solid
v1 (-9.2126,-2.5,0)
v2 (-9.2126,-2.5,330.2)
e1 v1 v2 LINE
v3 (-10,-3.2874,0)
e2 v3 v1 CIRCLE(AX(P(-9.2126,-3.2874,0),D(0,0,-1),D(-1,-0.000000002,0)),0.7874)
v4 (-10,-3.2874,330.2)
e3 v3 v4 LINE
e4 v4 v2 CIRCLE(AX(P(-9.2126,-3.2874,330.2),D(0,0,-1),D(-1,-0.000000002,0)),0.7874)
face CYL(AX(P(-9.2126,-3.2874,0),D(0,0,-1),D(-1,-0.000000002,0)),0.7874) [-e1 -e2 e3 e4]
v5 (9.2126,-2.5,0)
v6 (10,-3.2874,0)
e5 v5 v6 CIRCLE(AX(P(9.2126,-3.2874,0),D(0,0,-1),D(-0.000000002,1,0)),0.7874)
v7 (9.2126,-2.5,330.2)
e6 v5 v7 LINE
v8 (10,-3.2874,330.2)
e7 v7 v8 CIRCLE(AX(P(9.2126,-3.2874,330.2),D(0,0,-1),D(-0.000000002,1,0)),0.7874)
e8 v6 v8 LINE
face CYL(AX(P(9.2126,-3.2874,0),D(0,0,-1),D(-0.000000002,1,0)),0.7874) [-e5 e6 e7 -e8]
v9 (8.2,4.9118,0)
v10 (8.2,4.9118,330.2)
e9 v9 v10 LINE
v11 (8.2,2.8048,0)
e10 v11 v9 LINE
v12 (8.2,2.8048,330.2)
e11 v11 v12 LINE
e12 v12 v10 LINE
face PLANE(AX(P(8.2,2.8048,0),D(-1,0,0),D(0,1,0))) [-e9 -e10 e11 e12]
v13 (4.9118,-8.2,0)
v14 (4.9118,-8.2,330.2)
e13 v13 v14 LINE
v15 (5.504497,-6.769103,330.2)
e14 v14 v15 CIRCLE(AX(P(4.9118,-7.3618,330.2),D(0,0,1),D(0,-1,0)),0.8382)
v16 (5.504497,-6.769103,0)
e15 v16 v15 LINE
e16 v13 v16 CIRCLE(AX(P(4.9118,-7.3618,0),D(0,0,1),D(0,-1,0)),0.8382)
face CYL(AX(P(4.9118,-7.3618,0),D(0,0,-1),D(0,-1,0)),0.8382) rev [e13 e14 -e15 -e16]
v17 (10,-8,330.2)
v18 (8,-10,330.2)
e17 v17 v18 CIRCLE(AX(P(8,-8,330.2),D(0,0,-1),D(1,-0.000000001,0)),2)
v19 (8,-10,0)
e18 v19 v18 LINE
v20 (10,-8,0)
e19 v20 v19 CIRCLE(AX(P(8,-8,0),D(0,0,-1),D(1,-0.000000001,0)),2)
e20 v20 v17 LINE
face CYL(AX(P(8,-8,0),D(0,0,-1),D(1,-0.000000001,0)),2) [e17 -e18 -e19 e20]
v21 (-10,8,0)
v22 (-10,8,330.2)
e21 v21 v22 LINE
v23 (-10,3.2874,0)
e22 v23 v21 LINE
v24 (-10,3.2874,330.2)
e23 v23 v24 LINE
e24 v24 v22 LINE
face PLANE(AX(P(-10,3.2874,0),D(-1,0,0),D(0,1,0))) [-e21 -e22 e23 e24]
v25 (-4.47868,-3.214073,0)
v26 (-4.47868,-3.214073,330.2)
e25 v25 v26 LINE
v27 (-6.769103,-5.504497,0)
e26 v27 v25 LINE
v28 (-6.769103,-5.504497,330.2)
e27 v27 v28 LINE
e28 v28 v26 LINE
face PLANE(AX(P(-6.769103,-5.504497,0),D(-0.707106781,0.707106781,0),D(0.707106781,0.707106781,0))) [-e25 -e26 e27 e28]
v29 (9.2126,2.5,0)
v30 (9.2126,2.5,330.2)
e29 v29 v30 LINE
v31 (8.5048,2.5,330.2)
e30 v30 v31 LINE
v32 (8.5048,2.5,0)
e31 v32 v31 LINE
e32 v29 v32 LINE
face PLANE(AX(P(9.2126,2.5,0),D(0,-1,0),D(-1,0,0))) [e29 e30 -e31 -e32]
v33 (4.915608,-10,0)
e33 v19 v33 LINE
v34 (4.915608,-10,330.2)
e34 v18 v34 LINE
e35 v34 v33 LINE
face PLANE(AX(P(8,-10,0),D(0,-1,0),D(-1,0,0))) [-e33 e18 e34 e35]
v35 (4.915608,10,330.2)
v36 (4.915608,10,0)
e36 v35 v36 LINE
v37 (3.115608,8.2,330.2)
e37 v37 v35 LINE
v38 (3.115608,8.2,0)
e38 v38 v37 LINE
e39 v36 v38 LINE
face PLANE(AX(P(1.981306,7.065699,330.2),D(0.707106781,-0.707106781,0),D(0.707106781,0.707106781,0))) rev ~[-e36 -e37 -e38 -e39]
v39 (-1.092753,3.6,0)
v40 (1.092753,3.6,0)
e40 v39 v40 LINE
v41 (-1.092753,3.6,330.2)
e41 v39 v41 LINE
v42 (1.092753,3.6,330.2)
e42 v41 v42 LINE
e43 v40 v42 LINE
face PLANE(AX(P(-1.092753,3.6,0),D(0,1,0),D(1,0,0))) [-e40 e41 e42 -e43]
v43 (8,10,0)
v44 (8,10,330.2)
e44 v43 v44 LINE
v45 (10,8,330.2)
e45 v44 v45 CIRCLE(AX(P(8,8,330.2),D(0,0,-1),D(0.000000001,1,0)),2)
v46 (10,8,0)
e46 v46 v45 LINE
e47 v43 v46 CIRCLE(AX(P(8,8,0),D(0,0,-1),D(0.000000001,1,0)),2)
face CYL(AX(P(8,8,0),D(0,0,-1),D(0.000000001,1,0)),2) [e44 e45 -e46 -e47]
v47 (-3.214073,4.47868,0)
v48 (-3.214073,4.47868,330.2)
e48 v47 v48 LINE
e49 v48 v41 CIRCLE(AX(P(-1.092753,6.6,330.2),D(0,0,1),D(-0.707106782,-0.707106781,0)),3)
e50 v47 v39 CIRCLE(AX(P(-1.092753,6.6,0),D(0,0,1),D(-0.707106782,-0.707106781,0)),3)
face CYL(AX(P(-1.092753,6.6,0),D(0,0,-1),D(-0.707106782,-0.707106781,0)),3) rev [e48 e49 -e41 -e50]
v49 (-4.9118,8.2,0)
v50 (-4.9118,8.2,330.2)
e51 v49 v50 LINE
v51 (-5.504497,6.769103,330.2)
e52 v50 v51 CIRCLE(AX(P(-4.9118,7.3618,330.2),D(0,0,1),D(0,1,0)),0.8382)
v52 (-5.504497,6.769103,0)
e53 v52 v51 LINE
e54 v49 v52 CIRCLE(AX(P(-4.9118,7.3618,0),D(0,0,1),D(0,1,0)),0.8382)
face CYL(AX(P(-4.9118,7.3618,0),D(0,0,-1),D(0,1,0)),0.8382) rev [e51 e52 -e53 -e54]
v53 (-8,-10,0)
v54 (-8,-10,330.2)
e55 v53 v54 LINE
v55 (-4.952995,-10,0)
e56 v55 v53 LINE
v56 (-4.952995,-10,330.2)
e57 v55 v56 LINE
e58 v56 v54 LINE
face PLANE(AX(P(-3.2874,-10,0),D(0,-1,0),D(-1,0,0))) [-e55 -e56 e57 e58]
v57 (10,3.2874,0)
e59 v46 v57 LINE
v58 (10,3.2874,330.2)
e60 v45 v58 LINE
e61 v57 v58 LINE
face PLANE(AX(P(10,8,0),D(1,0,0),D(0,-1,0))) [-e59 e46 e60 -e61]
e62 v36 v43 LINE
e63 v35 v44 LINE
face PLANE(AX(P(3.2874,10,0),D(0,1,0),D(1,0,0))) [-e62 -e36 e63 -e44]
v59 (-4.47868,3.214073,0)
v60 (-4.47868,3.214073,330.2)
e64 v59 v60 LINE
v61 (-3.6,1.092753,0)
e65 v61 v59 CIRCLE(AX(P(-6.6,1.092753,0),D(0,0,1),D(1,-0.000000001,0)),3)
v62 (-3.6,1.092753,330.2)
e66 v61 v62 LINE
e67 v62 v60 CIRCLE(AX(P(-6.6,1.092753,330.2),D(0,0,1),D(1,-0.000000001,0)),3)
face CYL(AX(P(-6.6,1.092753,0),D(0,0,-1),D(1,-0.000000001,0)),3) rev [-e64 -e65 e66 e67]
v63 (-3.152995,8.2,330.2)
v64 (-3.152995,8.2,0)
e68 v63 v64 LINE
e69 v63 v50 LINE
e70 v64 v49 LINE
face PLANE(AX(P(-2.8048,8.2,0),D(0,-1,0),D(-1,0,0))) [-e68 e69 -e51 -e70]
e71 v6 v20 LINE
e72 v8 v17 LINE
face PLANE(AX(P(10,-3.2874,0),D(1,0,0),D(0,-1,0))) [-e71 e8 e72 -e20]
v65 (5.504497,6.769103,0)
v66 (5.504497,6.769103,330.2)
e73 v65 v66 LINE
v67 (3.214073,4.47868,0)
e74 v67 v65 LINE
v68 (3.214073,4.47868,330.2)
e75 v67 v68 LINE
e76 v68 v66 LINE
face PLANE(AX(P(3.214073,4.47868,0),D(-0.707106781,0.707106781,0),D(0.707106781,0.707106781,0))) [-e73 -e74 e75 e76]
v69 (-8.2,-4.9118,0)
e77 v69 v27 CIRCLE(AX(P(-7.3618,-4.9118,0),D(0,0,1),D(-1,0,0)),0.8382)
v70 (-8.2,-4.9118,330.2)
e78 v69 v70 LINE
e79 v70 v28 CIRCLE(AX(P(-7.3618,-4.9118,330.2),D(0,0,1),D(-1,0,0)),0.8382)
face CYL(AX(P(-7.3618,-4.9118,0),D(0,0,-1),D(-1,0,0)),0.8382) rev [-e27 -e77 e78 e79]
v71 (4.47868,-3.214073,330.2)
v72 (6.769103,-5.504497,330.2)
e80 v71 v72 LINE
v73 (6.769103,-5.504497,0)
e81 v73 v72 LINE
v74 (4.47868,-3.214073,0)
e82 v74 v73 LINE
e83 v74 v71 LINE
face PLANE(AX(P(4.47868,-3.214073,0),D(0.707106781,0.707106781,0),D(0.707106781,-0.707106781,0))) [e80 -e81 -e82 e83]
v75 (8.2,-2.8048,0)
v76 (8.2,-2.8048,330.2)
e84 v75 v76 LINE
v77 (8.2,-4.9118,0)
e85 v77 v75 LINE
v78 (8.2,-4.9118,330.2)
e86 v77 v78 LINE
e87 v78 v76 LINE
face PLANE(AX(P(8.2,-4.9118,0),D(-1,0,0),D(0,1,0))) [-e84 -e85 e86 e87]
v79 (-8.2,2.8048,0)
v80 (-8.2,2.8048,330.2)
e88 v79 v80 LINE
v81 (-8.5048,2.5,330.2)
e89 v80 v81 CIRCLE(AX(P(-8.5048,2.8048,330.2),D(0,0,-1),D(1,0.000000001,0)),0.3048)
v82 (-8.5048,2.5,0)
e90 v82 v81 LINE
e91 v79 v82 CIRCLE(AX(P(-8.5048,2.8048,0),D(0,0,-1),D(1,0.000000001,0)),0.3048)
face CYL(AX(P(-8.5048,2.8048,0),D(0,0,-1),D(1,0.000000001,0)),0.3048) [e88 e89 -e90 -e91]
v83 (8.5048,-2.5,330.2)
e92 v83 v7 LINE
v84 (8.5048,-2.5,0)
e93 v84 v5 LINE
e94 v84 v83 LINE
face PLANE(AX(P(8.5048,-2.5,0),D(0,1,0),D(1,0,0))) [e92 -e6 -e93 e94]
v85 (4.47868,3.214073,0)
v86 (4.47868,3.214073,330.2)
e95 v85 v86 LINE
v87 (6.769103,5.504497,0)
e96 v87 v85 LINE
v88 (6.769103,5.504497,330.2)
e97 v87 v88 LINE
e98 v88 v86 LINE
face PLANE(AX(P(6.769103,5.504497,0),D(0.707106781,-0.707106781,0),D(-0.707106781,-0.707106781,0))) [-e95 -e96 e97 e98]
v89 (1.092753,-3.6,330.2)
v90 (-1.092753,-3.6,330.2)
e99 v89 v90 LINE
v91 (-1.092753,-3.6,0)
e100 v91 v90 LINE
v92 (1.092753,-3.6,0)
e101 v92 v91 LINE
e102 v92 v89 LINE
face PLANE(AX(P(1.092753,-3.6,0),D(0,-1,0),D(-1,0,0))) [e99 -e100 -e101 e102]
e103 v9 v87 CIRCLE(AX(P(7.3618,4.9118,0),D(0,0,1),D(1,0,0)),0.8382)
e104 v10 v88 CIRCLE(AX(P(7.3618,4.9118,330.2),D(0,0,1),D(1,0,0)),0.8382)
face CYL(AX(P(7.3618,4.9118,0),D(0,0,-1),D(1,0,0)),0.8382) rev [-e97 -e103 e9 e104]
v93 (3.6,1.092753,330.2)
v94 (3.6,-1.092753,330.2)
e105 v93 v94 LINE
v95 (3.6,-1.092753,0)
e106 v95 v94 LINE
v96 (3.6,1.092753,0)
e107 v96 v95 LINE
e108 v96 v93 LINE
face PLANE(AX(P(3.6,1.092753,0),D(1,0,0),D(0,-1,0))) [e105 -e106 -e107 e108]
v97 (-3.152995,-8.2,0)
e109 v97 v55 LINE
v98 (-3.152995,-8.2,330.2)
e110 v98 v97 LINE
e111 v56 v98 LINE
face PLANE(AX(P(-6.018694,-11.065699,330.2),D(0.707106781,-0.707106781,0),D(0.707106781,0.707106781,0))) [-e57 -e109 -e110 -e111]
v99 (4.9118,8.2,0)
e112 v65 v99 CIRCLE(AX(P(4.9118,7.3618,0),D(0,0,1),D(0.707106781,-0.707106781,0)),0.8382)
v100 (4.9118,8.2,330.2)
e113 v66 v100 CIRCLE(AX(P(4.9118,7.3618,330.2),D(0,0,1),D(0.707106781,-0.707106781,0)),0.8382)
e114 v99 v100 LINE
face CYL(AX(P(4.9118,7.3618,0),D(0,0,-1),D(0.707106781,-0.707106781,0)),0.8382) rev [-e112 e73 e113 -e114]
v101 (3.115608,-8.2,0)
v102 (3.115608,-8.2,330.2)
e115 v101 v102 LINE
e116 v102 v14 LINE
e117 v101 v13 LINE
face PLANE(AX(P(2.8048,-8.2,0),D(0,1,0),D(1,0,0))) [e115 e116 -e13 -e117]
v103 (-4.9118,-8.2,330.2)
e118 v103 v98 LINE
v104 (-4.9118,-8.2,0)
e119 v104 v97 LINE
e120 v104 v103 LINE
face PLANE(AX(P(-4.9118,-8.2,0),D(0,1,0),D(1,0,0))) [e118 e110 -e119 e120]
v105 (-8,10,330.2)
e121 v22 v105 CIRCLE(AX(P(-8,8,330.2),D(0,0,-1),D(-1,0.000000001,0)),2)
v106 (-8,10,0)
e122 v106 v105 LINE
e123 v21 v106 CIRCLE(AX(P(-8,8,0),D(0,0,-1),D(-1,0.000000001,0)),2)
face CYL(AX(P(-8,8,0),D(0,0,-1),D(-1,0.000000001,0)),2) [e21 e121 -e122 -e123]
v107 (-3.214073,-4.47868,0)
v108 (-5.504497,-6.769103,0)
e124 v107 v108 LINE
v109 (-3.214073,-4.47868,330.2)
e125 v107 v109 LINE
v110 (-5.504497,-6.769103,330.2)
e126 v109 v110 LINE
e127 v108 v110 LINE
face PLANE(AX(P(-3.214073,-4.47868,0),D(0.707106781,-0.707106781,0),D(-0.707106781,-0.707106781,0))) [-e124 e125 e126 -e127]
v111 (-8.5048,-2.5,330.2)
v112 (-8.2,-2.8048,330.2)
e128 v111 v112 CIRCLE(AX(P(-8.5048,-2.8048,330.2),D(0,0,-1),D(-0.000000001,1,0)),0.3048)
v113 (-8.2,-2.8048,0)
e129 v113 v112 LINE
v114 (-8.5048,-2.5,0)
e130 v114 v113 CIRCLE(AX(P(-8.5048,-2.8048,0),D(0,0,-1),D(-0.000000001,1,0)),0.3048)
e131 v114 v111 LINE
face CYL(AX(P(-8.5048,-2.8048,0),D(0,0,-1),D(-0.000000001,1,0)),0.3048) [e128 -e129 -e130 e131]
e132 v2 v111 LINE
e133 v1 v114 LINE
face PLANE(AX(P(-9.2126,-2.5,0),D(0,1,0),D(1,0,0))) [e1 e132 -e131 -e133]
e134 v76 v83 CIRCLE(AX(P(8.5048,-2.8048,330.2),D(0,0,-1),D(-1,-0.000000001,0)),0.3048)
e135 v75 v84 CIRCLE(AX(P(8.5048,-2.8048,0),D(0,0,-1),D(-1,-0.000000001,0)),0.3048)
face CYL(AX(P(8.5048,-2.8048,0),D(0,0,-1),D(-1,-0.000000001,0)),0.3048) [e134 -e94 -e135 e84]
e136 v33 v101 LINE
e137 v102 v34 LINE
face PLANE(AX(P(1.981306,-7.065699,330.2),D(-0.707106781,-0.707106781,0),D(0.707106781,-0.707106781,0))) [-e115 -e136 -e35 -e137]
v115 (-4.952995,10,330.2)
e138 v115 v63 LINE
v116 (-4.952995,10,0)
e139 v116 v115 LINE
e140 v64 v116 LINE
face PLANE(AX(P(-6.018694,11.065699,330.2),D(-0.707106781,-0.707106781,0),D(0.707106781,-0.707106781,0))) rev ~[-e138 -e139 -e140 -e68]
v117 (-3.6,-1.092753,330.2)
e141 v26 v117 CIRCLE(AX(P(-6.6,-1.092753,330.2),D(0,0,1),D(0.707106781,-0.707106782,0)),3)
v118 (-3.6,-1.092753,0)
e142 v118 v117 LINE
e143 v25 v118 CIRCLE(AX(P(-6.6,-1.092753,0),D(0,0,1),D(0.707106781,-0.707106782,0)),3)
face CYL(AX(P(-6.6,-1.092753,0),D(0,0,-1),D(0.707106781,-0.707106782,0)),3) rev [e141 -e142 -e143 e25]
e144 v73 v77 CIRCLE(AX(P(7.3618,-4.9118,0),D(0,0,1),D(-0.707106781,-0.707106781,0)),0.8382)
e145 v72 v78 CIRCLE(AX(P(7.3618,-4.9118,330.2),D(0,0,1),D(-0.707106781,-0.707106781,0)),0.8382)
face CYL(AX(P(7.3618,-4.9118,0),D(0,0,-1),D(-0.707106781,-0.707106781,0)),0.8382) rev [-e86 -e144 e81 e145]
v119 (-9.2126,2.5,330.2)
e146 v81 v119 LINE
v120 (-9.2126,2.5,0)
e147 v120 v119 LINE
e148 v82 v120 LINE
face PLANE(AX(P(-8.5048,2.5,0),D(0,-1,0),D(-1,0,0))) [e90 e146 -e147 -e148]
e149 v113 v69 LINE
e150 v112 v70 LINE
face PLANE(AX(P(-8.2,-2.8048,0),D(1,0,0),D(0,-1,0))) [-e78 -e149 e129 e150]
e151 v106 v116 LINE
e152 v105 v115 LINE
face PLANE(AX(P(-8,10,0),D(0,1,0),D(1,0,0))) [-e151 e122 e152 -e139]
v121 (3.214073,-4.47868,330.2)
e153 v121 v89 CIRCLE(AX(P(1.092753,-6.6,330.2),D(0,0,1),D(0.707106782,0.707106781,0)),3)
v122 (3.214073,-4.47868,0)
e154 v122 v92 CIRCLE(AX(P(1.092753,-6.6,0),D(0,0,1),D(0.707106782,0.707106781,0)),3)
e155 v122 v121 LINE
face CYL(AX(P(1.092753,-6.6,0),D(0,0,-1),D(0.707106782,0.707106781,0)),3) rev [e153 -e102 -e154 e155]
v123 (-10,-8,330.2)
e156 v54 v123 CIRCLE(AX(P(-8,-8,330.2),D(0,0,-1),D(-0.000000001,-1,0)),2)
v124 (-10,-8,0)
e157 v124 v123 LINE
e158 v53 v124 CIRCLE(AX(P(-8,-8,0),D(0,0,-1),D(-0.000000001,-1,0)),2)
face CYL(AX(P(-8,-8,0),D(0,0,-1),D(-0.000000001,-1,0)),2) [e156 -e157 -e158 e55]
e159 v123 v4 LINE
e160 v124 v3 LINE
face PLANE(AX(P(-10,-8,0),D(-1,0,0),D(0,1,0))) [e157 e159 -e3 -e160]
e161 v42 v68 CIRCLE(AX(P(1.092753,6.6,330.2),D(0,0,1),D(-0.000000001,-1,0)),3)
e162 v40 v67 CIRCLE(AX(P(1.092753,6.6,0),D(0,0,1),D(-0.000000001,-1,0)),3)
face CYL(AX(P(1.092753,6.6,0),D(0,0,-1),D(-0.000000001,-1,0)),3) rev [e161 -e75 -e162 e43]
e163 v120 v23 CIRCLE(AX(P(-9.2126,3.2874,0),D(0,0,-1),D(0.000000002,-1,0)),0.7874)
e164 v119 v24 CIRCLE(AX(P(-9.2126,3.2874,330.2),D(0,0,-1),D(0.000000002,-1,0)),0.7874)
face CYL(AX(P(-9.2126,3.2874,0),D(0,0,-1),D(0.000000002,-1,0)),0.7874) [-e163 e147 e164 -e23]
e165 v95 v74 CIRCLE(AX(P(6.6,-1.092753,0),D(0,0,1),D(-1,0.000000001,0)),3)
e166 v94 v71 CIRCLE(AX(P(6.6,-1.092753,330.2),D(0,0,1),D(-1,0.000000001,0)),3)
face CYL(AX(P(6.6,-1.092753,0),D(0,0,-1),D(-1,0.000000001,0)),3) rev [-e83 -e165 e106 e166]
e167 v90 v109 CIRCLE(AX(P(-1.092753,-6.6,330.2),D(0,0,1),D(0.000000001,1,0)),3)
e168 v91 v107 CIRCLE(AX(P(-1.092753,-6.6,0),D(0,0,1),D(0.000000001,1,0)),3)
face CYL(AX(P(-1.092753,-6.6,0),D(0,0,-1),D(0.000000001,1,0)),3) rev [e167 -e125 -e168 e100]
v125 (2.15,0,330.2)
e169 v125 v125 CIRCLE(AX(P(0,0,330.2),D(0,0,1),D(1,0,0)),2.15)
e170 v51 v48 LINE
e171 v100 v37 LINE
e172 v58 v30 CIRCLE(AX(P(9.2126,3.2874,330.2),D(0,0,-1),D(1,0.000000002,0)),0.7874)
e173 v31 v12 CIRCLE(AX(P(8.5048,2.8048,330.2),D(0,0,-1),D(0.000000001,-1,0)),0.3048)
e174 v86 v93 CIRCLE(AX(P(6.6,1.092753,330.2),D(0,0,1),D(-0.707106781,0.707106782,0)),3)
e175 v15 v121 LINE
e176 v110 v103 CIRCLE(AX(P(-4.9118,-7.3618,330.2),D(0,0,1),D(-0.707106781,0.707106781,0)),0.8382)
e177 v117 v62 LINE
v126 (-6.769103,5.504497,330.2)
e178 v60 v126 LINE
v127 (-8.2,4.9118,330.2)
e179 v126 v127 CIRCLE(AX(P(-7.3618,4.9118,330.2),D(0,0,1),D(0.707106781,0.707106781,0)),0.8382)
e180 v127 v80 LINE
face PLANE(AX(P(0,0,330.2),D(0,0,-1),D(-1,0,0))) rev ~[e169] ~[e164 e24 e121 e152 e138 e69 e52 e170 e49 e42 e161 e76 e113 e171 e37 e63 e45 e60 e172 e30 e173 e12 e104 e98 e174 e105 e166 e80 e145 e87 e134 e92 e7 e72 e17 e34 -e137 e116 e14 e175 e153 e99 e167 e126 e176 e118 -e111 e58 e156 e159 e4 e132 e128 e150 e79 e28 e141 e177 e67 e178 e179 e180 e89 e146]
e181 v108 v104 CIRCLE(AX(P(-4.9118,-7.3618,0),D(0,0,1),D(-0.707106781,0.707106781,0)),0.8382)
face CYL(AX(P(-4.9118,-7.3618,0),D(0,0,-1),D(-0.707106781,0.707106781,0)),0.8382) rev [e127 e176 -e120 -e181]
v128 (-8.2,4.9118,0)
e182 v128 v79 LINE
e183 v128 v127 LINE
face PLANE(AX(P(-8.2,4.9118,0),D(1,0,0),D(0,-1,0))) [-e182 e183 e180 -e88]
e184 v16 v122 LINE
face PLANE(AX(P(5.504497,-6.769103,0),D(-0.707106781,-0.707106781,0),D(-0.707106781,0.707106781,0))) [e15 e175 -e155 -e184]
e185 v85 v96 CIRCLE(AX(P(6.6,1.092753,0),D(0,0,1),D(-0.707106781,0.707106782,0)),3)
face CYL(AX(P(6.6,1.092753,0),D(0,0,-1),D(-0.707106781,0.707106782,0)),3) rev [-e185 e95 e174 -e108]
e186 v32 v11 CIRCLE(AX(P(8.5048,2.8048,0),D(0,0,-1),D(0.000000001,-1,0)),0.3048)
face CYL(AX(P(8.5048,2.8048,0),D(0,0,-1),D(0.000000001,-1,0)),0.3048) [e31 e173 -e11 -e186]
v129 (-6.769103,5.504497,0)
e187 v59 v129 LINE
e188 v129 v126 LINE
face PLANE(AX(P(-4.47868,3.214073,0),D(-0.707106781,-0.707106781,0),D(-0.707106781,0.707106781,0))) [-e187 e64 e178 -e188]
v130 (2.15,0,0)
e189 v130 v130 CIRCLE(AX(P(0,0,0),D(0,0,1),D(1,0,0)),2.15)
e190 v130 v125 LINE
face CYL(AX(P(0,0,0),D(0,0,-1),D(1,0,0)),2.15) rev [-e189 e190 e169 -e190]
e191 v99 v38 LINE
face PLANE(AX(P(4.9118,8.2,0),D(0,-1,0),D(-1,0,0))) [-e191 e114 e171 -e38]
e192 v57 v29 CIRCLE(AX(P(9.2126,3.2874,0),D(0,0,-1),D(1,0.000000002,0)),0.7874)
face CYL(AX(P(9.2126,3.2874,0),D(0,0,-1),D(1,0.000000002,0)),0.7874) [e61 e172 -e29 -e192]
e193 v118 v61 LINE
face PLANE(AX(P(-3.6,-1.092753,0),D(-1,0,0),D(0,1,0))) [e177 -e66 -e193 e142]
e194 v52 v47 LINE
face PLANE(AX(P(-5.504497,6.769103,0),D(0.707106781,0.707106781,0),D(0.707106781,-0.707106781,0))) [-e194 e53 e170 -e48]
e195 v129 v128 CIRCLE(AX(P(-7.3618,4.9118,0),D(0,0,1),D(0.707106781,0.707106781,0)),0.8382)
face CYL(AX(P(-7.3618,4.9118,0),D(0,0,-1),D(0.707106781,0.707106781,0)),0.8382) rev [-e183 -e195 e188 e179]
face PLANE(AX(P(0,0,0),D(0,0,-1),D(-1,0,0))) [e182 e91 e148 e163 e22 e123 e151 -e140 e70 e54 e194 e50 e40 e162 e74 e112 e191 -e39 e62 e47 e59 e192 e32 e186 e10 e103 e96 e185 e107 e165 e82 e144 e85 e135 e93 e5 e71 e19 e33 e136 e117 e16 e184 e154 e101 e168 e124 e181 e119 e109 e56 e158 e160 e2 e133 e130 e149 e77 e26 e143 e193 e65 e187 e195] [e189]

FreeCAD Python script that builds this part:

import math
import FreeCAD as App
import Part
import Sketcher

V = App.Vector


def add_polygon(sketch, points):
    """Adds a closed chain of lines whose ends are joined by coincident constraints."""
    first, n = sketch.GeometryCount, len(points)
    for a, b in zip(points, points[1:] + points[:1]):
        sketch.addGeometry(Part.LineSegment(App.Vector(*a, 0), App.Vector(*b, 0)), False)
    for i in range(n):
        sketch.addConstraint(Sketcher.Constraint("Coincident", first + i, 2, first + (i + 1) % n, 1))

doc = App.newDocument("Part")
body = doc.addObject("PartDesign::Body", "Body")

# Sketch on XY plane
sketch1 = doc.addObject("Sketcher::SketchObject", "Sketch")
body.addObject(sketch1)
sketch1.AttachmentSupport = (doc.XY_Plane, [""])
sketch1.MapMode = "FlatFace"
sketch1.addGeometry(Part.LineSegment(V(8, 10, 0), V(3.29, 10, 0)), False)
sketch1.addGeometry(Part.ArcOfCircle(Part.Circle(V(3.29, 9.21, 0), V(0, 0, 1), 0.79), math.radians(90), math.radians(180)), False)
sketch1.addGeometry(Part.LineSegment(V(2.5, 9.21, 0), V(2.5, 8.5, 0)), False)
sketch1.addGeometry(Part.ArcOfCircle(Part.Circle(V(2.8, 8.5, 0), V(0, 0, 1), 0.3), math.radians(180), math.radians(270)), False)
sketch1.addGeometry(Part.LineSegment(V(2.8, 8.2, 0), V(4.91, 8.2, 0)), False)
sketch1.addGeometry(Part.ArcOfCircle(Part.Circle(V(4.91, 7.36, 0), V(0, 0, 1), 0.84), math.radians(-45), math.radians(90)), False)
sketch1.addGeometry(Part.LineSegment(V(5.5, 6.77, 0), V(3.21, 4.48, 0)), False)
sketch1.addGeometry(Part.ArcOfCircle(Part.Circle(V(1.09, 6.6, 0), V(0, 0, 1), 3), math.radians(-90), math.radians(-45)), False)
sketch1.addGeometry(Part.LineSegment(V(1.09, 3.6, 0), V(-1.09, 3.6, 0)), False)
sketch1.addGeometry(Part.ArcOfCircle(Part.Circle(V(-1.09, 6.6, 0), V(0, 0, 1), 3), math.radians(-135), math.radians(-90)), False)
sketch1.addGeometry(Part.LineSegment(V(-3.21, 4.48, 0), V(-5.5, 6.77, 0)), False)
sketch1.addGeometry(Part.ArcOfCircle(Part.Circle(V(-4.91, 7.36, 0), V(0, 0, 1), 0.84), math.radians(90), math.radians(225)), False)
sketch1.addGeometry(Part.LineSegment(V(-4.91, 8.2, 0), V(-2.8, 8.2, 0)), False)
sketch1.addGeometry(Part.ArcOfCircle(Part.Circle(V(-2.8, 8.5, 0), V(0, 0, 1), 0.3), math.radians(-90), math.radians(0)), False)
sketch1.addGeometry(Part.LineSegment(V(-2.5, 8.5, 0), V(-2.5, 9.21, 0)), False)
sketch1.addGeometry(Part.ArcOfCircle(Part.Circle(V(-3.29, 9.21, 0), V(0, 0, 1), 0.79), math.radians(0), math.radians(90)), False)
sketch1.addGeometry(Part.LineSegment(V(-3.29, 10, 0), V(-8, 10, 0)), False)
sketch1.addGeometry(Part.ArcOfCircle(Part.Circle(V(-8, 8, 0), V(0, 0, 1), 2), math.radians(90), math.radians(180)), False)
sketch1.addGeometry(Part.LineSegment(V(-10, 8, 0), V(-10, 3.29, 0)), False)
sketch1.addGeometry(Part.ArcOfCircle(Part.Circle(V(-9.21, 3.29, 0), V(0, 0, 1), 0.79), math.radians(180), math.radians(270)), False)
sketch1.addGeometry(Part.LineSegment(V(-9.21, 2.5, 0), V(-8.5, 2.5, 0)), False)
sketch1.addGeometry(Part.ArcOfCircle(Part.Circle(V(-8.5, 2.8, 0), V(0, 0, 1), 0.3), math.radians(-90), math.radians(0)), False)
sketch1.addGeometry(Part.LineSegment(V(-8.2, 2.8, 0), V(-8.2, 4.91, 0)), False)
sketch1.addGeometry(Part.ArcOfCircle(Part.Circle(V(-7.36, 4.91, 0), V(0, 0, 1), 0.84), math.radians(45), math.radians(180)), False)
sketch1.addGeometry(Part.LineSegment(V(-6.77, 5.5, 0), V(-4.48, 3.21, 0)), False)
sketch1.addGeometry(Part.ArcOfCircle(Part.Circle(V(-6.6, 1.09, 0), V(0, 0, 1), 3), math.radians(0), math.radians(45)), False)
sketch1.addGeometry(Part.LineSegment(V(-3.6, 1.09, 0), V(-3.6, -1.09, 0)), False)
sketch1.addGeometry(Part.ArcOfCircle(Part.Circle(V(-6.6, -1.09, 0), V(0, 0, 1), 3), math.radians(-45), math.radians(0)), False)
sketch1.addGeometry(Part.LineSegment(V(-4.48, -3.21, 0), V(-6.77, -5.5, 0)), False)
sketch1.addGeometry(Part.ArcOfCircle(Part.Circle(V(-7.36, -4.91, 0), V(0, 0, 1), 0.84), math.radians(180), math.radians(315)), False)
sketch1.addGeometry(Part.LineSegment(V(-8.2, -4.91, 0), V(-8.2, -2.8, 0)), False)
sketch1.addGeometry(Part.ArcOfCircle(Part.Circle(V(-8.5, -2.8, 0), V(0, 0, 1), 0.3), math.radians(0), math.radians(90)), False)
sketch1.addGeometry(Part.LineSegment(V(-8.5, -2.5, 0), V(-9.21, -2.5, 0)), False)
sketch1.addGeometry(Part.ArcOfCircle(Part.Circle(V(-9.21, -3.29, 0), V(0, 0, 1), 0.79), math.radians(90), math.radians(180)), False)
sketch1.addGeometry(Part.LineSegment(V(-10, -3.29, 0), V(-10, -8, 0)), False)
sketch1.addGeometry(Part.ArcOfCircle(Part.Circle(V(-8, -8, 0), V(0, 0, 1), 2), math.radians(-180), math.radians(-90)), False)
sketch1.addGeometry(Part.LineSegment(V(-8, -10, 0), V(-3.29, -10, 0)), False)
sketch1.addGeometry(Part.ArcOfCircle(Part.Circle(V(-3.29, -9.21, 0), V(0, 0, 1), 0.79), math.radians(-90), math.radians(0)), False)
sketch1.addGeometry(Part.LineSegment(V(-2.5, -9.21, 0), V(-2.5, -8.5, 0)), False)
sketch1.addGeometry(Part.ArcOfCircle(Part.Circle(V(-2.8, -8.5, 0), V(0, 0, 1), 0.3), math.radians(0), math.radians(90)), False)
sketch1.addGeometry(Part.LineSegment(V(-2.8, -8.2, 0), V(-4.91, -8.2, 0)), False)
sketch1.addGeometry(Part.ArcOfCircle(Part.Circle(V(-4.91, -7.36, 0), V(0, 0, 1), 0.84), math.radians(135), math.radians(270)), False)
sketch1.addGeometry(Part.LineSegment(V(-5.5, -6.77, 0), V(-3.21, -4.48, 0)), False)
sketch1.addGeometry(Part.ArcOfCircle(Part.Circle(V(-1.09, -6.6, 0), V(0, 0, 1), 3), math.radians(90), math.radians(135)), False)
sketch1.addGeometry(Part.LineSegment(V(-1.09, -3.6, 0), V(1.09, -3.6, 0)), False)
sketch1.addGeometry(Part.ArcOfCircle(Part.Circle(V(1.09, -6.6, 0), V(0, 0, 1), 3), math.radians(45), math.radians(90)), False)
sketch1.addGeometry(Part.LineSegment(V(3.21, -4.48, 0), V(5.5, -6.77, 0)), False)
sketch1.addGeometry(Part.ArcOfCircle(Part.Circle(V(4.91, -7.36, 0), V(0, 0, 1), 0.84), math.radians(-90), math.radians(45)), False)
sketch1.addGeometry(Part.LineSegment(V(4.91, -8.2, 0), V(2.8, -8.2, 0)), False)
sketch1.addGeometry(Part.ArcOfCircle(Part.Circle(V(2.8, -8.5, 0), V(0, 0, 1), 0.3), math.radians(90), math.radians(180)), False)
sketch1.addGeometry(Part.LineSegment(V(2.5, -8.5, 0), V(2.5, -9.21, 0)), False)
sketch1.addGeometry(Part.ArcOfCircle(Part.Circle(V(3.29, -9.21, 0), V(0, 0, 1), 0.79), math.radians(180), math.radians(270)), False)
sketch1.addGeometry(Part.LineSegment(V(3.29, -10, 0), V(8, -10, 0)), False)
sketch1.addGeometry(Part.ArcOfCircle(Part.Circle(V(8, -8, 0), V(0, 0, 1), 2), math.radians(-90), math.radians(0)), False)
sketch1.addGeometry(Part.LineSegment(V(10, -8, 0), V(10, -3.29, 0)), False)
sketch1.addGeometry(Part.ArcOfCircle(Part.Circle(V(9.21, -3.29, 0), V(0, 0, 1), 0.79), math.radians(0), math.radians(90)), False)
sketch1.addGeometry(Part.LineSegment(V(9.21, -2.5, 0), V(8.5, -2.5, 0)), False)
sketch1.addGeometry(Part.ArcOfCircle(Part.Circle(V(8.5, -2.8, 0), V(0, 0, 1), 0.3), math.radians(90), math.radians(180)), False)
sketch1.addGeometry(Part.LineSegment(V(8.2, -2.8, 0), V(8.2, -4.91, 0)), False)
sketch1.addGeometry(Part.ArcOfCircle(Part.Circle(V(7.36, -4.91, 0), V(0, 0, 1), 0.84), math.radians(-135), math.radians(0)), False)
sketch1.addGeometry(Part.LineSegment(V(6.77, -5.5, 0), V(4.48, -3.21, 0)), False)
sketch1.addGeometry(Part.ArcOfCircle(Part.Circle(V(6.6, -1.09, 0), V(0, 0, 1), 3), math.radians(180), math.radians(225)), False)
sketch1.addGeometry(Part.LineSegment(V(3.6, -1.09, 0), V(3.6, 1.09, 0)), False)
sketch1.addGeometry(Part.ArcOfCircle(Part.Circle(V(6.6, 1.09, 0), V(0, 0, 1), 3), math.radians(135), math.radians(180)), False)
sketch1.addGeometry(Part.LineSegment(V(4.48, 3.21, 0), V(6.77, 5.5, 0)), False)
sketch1.addGeometry(Part.ArcOfCircle(Part.Circle(V(7.36, 4.91, 0), V(0, 0, 1), 0.84), math.radians(0), math.radians(135)), False)
sketch1.addGeometry(Part.LineSegment(V(8.2, 4.91, 0), V(8.2, 2.8, 0)), False)
sketch1.addGeometry(Part.ArcOfCircle(Part.Circle(V(8.5, 2.8, 0), V(0, 0, 1), 0.3), math.radians(180), math.radians(270)), False)
sketch1.addGeometry(Part.LineSegment(V(8.5, 2.5, 0), V(9.21, 2.5, 0)), False)
sketch1.addGeometry(Part.ArcOfCircle(Part.Circle(V(9.21, 3.29, 0), V(0, 0, 1), 0.79), math.radians(-90), math.radians(0)), False)
sketch1.addGeometry(Part.LineSegment(V(10, 3.29, 0), V(10, 8, 0)), False)
sketch1.addGeometry(Part.ArcOfCircle(Part.Circle(V(8, 8, 0), V(0, 0, 1), 2), math.radians(0), math.radians(90)), False)
sketch1.addGeometry(Part.Circle(V(0, 0, 0), V(0, 0, 1), 2.15), False)
sketch1.addConstraint(Sketcher.Constraint("Tangent", 0, 2, 1, 1))
sketch1.addConstraint(Sketcher.Constraint("Tangent", 1, 2, 2, 1))
sketch1.addConstraint(Sketcher.Constraint("Tangent", 2, 2, 3, 1))
sketch1.addConstraint(Sketcher.Constraint("Tangent", 3, 2, 4, 1))
sketch1.addConstraint(Sketcher.Constraint("Tangent", 4, 2, 5, 2))
sketch1.addConstraint(Sketcher.Constraint("Tangent", 5, 1, 6, 1))
sketch1.addConstraint(Sketcher.Constraint("Tangent", 6, 2, 7, 2))
sketch1.addConstraint(Sketcher.Constraint("Tangent", 7, 1, 8, 1))
sketch1.addConstraint(Sketcher.Constraint("Tangent", 8, 2, 9, 2))
sketch1.addConstraint(Sketcher.Constraint("Tangent", 9, 1, 10, 1))
sketch1.addConstraint(Sketcher.Constraint("Tangent", 10, 2, 11, 2))
sketch1.addConstraint(Sketcher.Constraint("Tangent", 11, 1, 12, 1))
sketch1.addConstraint(Sketcher.Constraint("Tangent", 12, 2, 13, 1))
sketch1.addConstraint(Sketcher.Constraint("Tangent", 13, 2, 14, 1))
sketch1.addConstraint(Sketcher.Constraint("Tangent", 14, 2, 15, 1))
sketch1.addConstraint(Sketcher.Constraint("Tangent", 15, 2, 16, 1))
sketch1.addConstraint(Sketcher.Constraint("Tangent", 16, 2, 17, 1))
sketch1.addConstraint(Sketcher.Constraint("Tangent", 17, 2, 18, 1))
sketch1.addConstraint(Sketcher.Constraint("Tangent", 18, 2, 19, 1))
sketch1.addConstraint(Sketcher.Constraint("Tangent", 19, 2, 20, 1))
sketch1.addConstraint(Sketcher.Constraint("Tangent", 20, 2, 21, 1))
sketch1.addConstraint(Sketcher.Constraint("Tangent", 21, 2, 22, 1))
sketch1.addConstraint(Sketcher.Constraint("Tangent", 22, 2, 23, 2))
sketch1.addConstraint(Sketcher.Constraint("Tangent", 23, 1, 24, 1))
sketch1.addConstraint(Sketcher.Constraint("Tangent", 24, 2, 25, 2))
sketch1.addConstraint(Sketcher.Constraint("Tangent", 25, 1, 26, 1))
sketch1.addConstraint(Sketcher.Constraint("Tangent", 26, 2, 27, 2))
sketch1.addConstraint(Sketcher.Constraint("Tangent", 27, 1, 28, 1))
sketch1.addConstraint(Sketcher.Constraint("Tangent", 28, 2, 29, 2))
sketch1.addConstraint(Sketcher.Constraint("Tangent", 29, 1, 30, 1))
sketch1.addConstraint(Sketcher.Constraint("Tangent", 30, 2, 31, 1))
sketch1.addConstraint(Sketcher.Constraint("Tangent", 31, 2, 32, 1))
sketch1.addConstraint(Sketcher.Constraint("Tangent", 32, 2, 33, 1))
sketch1.addConstraint(Sketcher.Constraint("Tangent", 33, 2, 34, 1))
sketch1.addConstraint(Sketcher.Constraint("Tangent", 34, 2, 35, 1))
sketch1.addConstraint(Sketcher.Constraint("Tangent", 35, 2, 36, 1))
sketch1.addConstraint(Sketcher.Constraint("Tangent", 36, 2, 37, 1))
sketch1.addConstraint(Sketcher.Constraint("Tangent", 37, 2, 38, 1))
sketch1.addConstraint(Sketcher.Constraint("Tangent", 38, 2, 39, 1))
sketch1.addConstraint(Sketcher.Constraint("Tangent", 39, 2, 40, 1))
sketch1.addConstraint(Sketcher.Constraint("Tangent", 40, 2, 41, 2))
sketch1.addConstraint(Sketcher.Constraint("Tangent", 41, 1, 42, 1))
sketch1.addConstraint(Sketcher.Constraint("Tangent", 42, 2, 43, 2))
sketch1.addConstraint(Sketcher.Constraint("Tangent", 43, 1, 44, 1))
sketch1.addConstraint(Sketcher.Constraint("Tangent", 44, 2, 45, 2))
sketch1.addConstraint(Sketcher.Constraint("Tangent", 45, 1, 46, 1))
sketch1.addConstraint(Sketcher.Constraint("Tangent", 46, 2, 47, 2))
sketch1.addConstraint(Sketcher.Constraint("Tangent", 47, 1, 48, 1))
sketch1.addConstraint(Sketcher.Constraint("Tangent", 48, 2, 49, 1))
sketch1.addConstraint(Sketcher.Constraint("Tangent", 49, 2, 50, 1))
sketch1.addConstraint(Sketcher.Constraint("Tangent", 50, 2, 51, 1))
sketch1.addConstraint(Sketcher.Constraint("Tangent", 51, 2, 52, 1))
sketch1.addConstraint(Sketcher.Constraint("Tangent", 52, 2, 53, 1))
sketch1.addConstraint(Sketcher.Constraint("Tangent", 53, 2, 54, 1))
sketch1.addConstraint(Sketcher.Constraint("Tangent", 54, 2, 55, 1))
sketch1.addConstraint(Sketcher.Constraint("Tangent", 55, 2, 56, 1))
sketch1.addConstraint(Sketcher.Constraint("Tangent", 56, 2, 57, 1))
sketch1.addConstraint(Sketcher.Constraint("Tangent", 57, 2, 58, 1))
sketch1.addConstraint(Sketcher.Constraint("Tangent", 58, 2, 59, 2))
sketch1.addConstraint(Sketcher.Constraint("Tangent", 59, 1, 60, 1))
sketch1.addConstraint(Sketcher.Constraint("Tangent", 60, 2, 61, 2))
sketch1.addConstraint(Sketcher.Constraint("Tangent", 61, 1, 62, 1))
sketch1.addConstraint(Sketcher.Constraint("Tangent", 62, 2, 63, 2))
sketch1.addConstraint(Sketcher.Constraint("Tangent", 63, 1, 64, 1))
sketch1.addConstraint(Sketcher.Constraint("Tangent", 64, 2, 65, 2))
sketch1.addConstraint(Sketcher.Constraint("Tangent", 65, 1, 66, 1))
sketch1.addConstraint(Sketcher.Constraint("Tangent", 66, 2, 67, 1))
sketch1.addConstraint(Sketcher.Constraint("Tangent", 67, 2, 68, 1))
sketch1.addConstraint(Sketcher.Constraint("Tangent", 68, 2, 69, 1))
sketch1.addConstraint(Sketcher.Constraint("Tangent", 69, 2, 70, 1))
sketch1.addConstraint(Sketcher.Constraint("Tangent", 70, 2, 71, 1))
sketch1.addConstraint(Sketcher.Constraint("Tangent", 71, 2, 0, 1))
sketch1.addConstraint(Sketcher.Constraint("Horizontal", 0))
sketch1.addConstraint(Sketcher.Constraint("Vertical", 2))
sketch1.addConstraint(Sketcher.Constraint("Horizontal", 4))
sketch1.addConstraint(Sketcher.Constraint("Horizontal", 8))
sketch1.addConstraint(Sketcher.Constraint("Horizontal", 12))
sketch1.addConstraint(Sketcher.Constraint("Vertical", 14))
sketch1.addConstraint(Sketcher.Constraint("Horizontal", 16))
sketch1.addConstraint(Sketcher.Constraint("Vertical", 18))
sketch1.addConstraint(Sketcher.Constraint("Horizontal", 20))
sketch1.addConstraint(Sketcher.Constraint("Vertical", 22))
sketch1.addConstraint(Sketcher.Constraint("Vertical", 26))
sketch1.addConstraint(Sketcher.Constraint("Vertical", 30))
sketch1.addConstraint(Sketcher.Constraint("Horizontal", 32))
sketch1.addConstraint(Sketcher.Constraint("Vertical", 34))
sketch1.addConstraint(Sketcher.Constraint("Horizontal", 36))
sketch1.addConstraint(Sketcher.Constraint("Vertical", 38))
sketch1.addConstraint(Sketcher.Constraint("Horizontal", 40))
sketch1.addConstraint(Sketcher.Constraint("Horizontal", 44))
sketch1.addConstraint(Sketcher.Constraint("Horizontal", 48))
sketch1.addConstraint(Sketcher.Constraint("Vertical", 50))
sketch1.addConstraint(Sketcher.Constraint("Horizontal", 52))
sketch1.addConstraint(Sketcher.Constraint("Vertical", 54))
sketch1.addConstraint(Sketcher.Constraint("Horizontal", 56))
sketch1.addConstraint(Sketcher.Constraint("Vertical", 58))
sketch1.addConstraint(Sketcher.Constraint("Vertical", 62))
sketch1.addConstraint(Sketcher.Constraint("Vertical", 66))
sketch1.addConstraint(Sketcher.Constraint("Horizontal", 68))
sketch1.addConstraint(Sketcher.Constraint("Vertical", 70))
sketch1.addConstraint(Sketcher.Constraint("Coincident", 72, 3, -1, 1))
sketch1.addConstraint(Sketcher.Constraint("Equal", 7, 9))
sketch1.addConstraint(Sketcher.Constraint("Equal", 5, 11))
sketch1.addConstraint(Sketcher.Constraint("Equal", 3, 13))
sketch1.addConstraint(Sketcher.Constraint("Equal", 1, 15))
sketch1.addConstraint(Sketcher.Constraint("Equal", 15, 19))
sketch1.addConstraint(Sketcher.Constraint("Equal", 13, 21))
sketch1.addConstraint(Sketcher.Constraint("Equal", 11, 23))
sketch1.addConstraint(Sketcher.Constraint("Equal", 9, 25))
sketch1.addConstraint(Sketcher.Constraint("Equal", 25, 27))
sketch1.addConstraint(Sketcher.Constraint("Equal", 23, 29))
sketch1.addConstraint(Sketcher.Constraint("Equal", 21, 31))
sketch1.addConstraint(Sketcher.Constraint("Equal", 19, 33))
sketch1.addConstraint(Sketcher.Constraint("Equal", 17, 35))
sketch1.addConstraint(Sketcher.Constraint("Equal", 33, 37))
sketch1.addConstraint(Sketcher.Constraint("Equal", 31, 39))
sketch1.addConstraint(Sketcher.Constraint("Equal", 29, 41))
sketch1.addConstraint(Sketcher.Constraint("Equal", 27, 43))
sketch1.addConstraint(Sketcher.Constraint("Equal", 43, 45))
sketch1.addConstraint(Sketcher.Constraint("Equal", 41, 47))
sketch1.addConstraint(Sketcher.Constraint("Equal", 39, 49))
sketch1.addConstraint(Sketcher.Constraint("Equal", 37, 51))
sketch1.addConstraint(Sketcher.Constraint("Equal", 35, 53))
sketch1.addConstraint(Sketcher.Constraint("Equal", 51, 55))
sketch1.addConstraint(Sketcher.Constraint("Equal", 49, 57))
sketch1.addConstraint(Sketcher.Constraint("Equal", 47, 59))
sketch1.addConstraint(Sketcher.Constraint("Equal", 45, 61))
sketch1.addConstraint(Sketcher.Constraint("Equal", 61, 63))
sketch1.addConstraint(Sketcher.Constraint("Equal", 59, 65))
sketch1.addConstraint(Sketcher.Constraint("Equal", 57, 67))
sketch1.addConstraint(Sketcher.Constraint("Equal", 55, 69))
sketch1.addConstraint(Sketcher.Constraint("Equal", 53, 71))
sketch1.addConstraint(Sketcher.Constraint("Symmetric", 1, 3, 37, 3, -1, 1))
sketch1.addConstraint(Sketcher.Constraint("Symmetric", 5, 3, 41, 3, -1, 1))
sketch1.addConstraint(Sketcher.Constraint("Symmetric", 7, 3, 43, 3, -1, 1))
sketch1.addConstraint(Sketcher.Constraint("Symmetric", 11, 3, 47, 3, -1, 1))
sketch1.addConstraint(Sketcher.Constraint("Symmetric", 15, 3, 51, 3, -1, 1))
sketch1.addConstraint(Sketcher.Constraint("Symmetric", 19, 3, 55, 3, -1, 1))
sketch1.addConstraint(Sketcher.Constraint("Symmetric", 23, 3, 59, 3, -1, 1))
sketch1.addConstraint(Sketcher.Constraint("Symmetric", 25, 3, 61, 3, -1, 1))
sketch1.addConstraint(Sketcher.Constraint("Symmetric", 29, 3, 65, 3, -1, 1))
sketch1.addConstraint(Sketcher.Constraint("Symmetric", 33, 3, 69, 3, -1, 1))
sketch1.addConstraint(Sketcher.Constraint("Symmetric", 5, 3, 11, 3, -2))
sketch1.addConstraint(Sketcher.Constraint("Symmetric", 1, 3, 15, 3, -2))
sketch1.addConstraint(Sketcher.Constraint("Symmetric", 33, 3, 55, 3, -2))
sketch1.addConstraint(Sketcher.Constraint("Symmetric", 29, 3, 59, 3, -2))
sketch1.addConstraint(Sketcher.Constraint("Perpendicular", 6, 10))
sketch1.addConstraint(Sketcher.Constraint("Parallel", 10, 24))
sketch1.addConstraint(Sketcher.Constraint("Perpendicular", 24, 28))
sketch1.addConstraint(Sketcher.Constraint("Perpendicular", 42, 46))
sketch1.addConstraint(Sketcher.Constraint("Perpendicular", 60, 64))
sketch1.addConstraint(Sketcher.Constraint("Horizontal", 27, 3, 61, 3))
sketch1.addConstraint(Sketcher.Constraint("Equal", 68, 2))
sketch1.addConstraint(Sketcher.Constraint("Equal", 52, 18))
sketch1.addConstraint(Sketcher.Constraint("Equal", 48, 22))
sketch1.addConstraint(Sketcher.Constraint("Equal", 44, 26))
sketch1.addConstraint(Sketcher.Constraint("Equal", 10, 24))
sketch1.addConstraint(Sketcher.Constraint("Radius", 7, 3.0))
sketch1.addConstraint(Sketcher.Constraint("Radius", 17, 2.0))
sketch1.addConstraint(Sketcher.Constraint("Diameter", 72, 4.3))
sketch1.addConstraint(Sketcher.Constraint("DistanceX", 17, 3, -1, 1, 8.0))
sketch1.addConstraint(Sketcher.Constraint("DistanceY", -1, 1, 7, 3, 6.6))
sketch1.addConstraint(Sketcher.Constraint("DistanceX", -1, 1, 1, 2, 2.5))
sketch1.addConstraint(Sketcher.Constraint("DistanceY", -1, 1, 3, 2, 8.2))
sketch1.addConstraint(Sketcher.Constraint("Radius", 1, 0.7874))
sketch1.addConstraint(Sketcher.Constraint("Radius", 3, 0.3048))
sketch1.addConstraint(Sketcher.Constraint("Radius", 5, 0.8382))
sketch1.addConstraint(Sketcher.Constraint("DistanceX", 4, 1, 4, 2, 2.107))
pad1 = doc.addObject("PartDesign::Pad", "Pad")
body.addObject(pad1)
pad1.Profile = sketch1
pad1.Length = 330.2

# Sketch on XY plane
sketch2 = doc.addObject("Sketcher::SketchObject", "Sketch001")
body.addObject(sketch2)
sketch2.AttachmentSupport = (doc.XY_Plane, [""])
sketch2.MapMode = "FlatFace"
sketch2.AttachmentOffset = App.Placement(V(0, 0, 330.2), App.Rotation())
add_polygon(sketch2, [(-6, 11.1), (-2, 7.1), (2, 7.1), (6, 11.1)])  # lines 0-3
add_polygon(sketch2, [(6, -11.1), (2, -7.1), (-2, -7.1), (-6, -11.1)])  # lines 4-7
sketch2.addConstraint(Sketcher.Constraint("Horizontal", 1))
sketch2.addConstraint(Sketcher.Constraint("Horizontal", 3))
sketch2.addConstraint(Sketcher.Constraint("Horizontal", 5))
sketch2.addConstraint(Sketcher.Constraint("Horizontal", 7))
sketch2.addConstraint(Sketcher.Constraint("Symmetric", 1, 2, 4, 2, -1))
sketch2.addConstraint(Sketcher.Constraint("Symmetric", 3, 2, 6, 2, -1))
sketch2.addConstraint(Sketcher.Constraint("Perpendicular", 0, 2))
sketch2.addConstraint(Sketcher.Constraint("Perpendicular", 2, 4))
sketch2.addConstraint(Sketcher.Constraint("Perpendicular", 4, 6))
sketch2.addConstraint(Sketcher.Constraint("Vertical", 0, 2, 5, 2))
sketch2.addConstraint(Sketcher.Constraint("DistanceX", 1, 1, 1, 2, 4.0))
sketch2.addConstraint(Sketcher.Constraint("DistanceX", 3, 2, 3, 1, 12.0))
sketch2.addConstraint(Sketcher.Constraint("DistanceY", -1, 1, 0, 2, 7.065699))
sketch2.addConstraint(Sketcher.Constraint("DistanceX", 0, 2, -1, 1, 2.018694))
pocket1 = doc.addObject("PartDesign::Pocket", "Pocket")
body.addObject(pocket1)
pocket1.Profile = sketch2
pocket1.Type = "ThroughAll"

doc.recompute()
